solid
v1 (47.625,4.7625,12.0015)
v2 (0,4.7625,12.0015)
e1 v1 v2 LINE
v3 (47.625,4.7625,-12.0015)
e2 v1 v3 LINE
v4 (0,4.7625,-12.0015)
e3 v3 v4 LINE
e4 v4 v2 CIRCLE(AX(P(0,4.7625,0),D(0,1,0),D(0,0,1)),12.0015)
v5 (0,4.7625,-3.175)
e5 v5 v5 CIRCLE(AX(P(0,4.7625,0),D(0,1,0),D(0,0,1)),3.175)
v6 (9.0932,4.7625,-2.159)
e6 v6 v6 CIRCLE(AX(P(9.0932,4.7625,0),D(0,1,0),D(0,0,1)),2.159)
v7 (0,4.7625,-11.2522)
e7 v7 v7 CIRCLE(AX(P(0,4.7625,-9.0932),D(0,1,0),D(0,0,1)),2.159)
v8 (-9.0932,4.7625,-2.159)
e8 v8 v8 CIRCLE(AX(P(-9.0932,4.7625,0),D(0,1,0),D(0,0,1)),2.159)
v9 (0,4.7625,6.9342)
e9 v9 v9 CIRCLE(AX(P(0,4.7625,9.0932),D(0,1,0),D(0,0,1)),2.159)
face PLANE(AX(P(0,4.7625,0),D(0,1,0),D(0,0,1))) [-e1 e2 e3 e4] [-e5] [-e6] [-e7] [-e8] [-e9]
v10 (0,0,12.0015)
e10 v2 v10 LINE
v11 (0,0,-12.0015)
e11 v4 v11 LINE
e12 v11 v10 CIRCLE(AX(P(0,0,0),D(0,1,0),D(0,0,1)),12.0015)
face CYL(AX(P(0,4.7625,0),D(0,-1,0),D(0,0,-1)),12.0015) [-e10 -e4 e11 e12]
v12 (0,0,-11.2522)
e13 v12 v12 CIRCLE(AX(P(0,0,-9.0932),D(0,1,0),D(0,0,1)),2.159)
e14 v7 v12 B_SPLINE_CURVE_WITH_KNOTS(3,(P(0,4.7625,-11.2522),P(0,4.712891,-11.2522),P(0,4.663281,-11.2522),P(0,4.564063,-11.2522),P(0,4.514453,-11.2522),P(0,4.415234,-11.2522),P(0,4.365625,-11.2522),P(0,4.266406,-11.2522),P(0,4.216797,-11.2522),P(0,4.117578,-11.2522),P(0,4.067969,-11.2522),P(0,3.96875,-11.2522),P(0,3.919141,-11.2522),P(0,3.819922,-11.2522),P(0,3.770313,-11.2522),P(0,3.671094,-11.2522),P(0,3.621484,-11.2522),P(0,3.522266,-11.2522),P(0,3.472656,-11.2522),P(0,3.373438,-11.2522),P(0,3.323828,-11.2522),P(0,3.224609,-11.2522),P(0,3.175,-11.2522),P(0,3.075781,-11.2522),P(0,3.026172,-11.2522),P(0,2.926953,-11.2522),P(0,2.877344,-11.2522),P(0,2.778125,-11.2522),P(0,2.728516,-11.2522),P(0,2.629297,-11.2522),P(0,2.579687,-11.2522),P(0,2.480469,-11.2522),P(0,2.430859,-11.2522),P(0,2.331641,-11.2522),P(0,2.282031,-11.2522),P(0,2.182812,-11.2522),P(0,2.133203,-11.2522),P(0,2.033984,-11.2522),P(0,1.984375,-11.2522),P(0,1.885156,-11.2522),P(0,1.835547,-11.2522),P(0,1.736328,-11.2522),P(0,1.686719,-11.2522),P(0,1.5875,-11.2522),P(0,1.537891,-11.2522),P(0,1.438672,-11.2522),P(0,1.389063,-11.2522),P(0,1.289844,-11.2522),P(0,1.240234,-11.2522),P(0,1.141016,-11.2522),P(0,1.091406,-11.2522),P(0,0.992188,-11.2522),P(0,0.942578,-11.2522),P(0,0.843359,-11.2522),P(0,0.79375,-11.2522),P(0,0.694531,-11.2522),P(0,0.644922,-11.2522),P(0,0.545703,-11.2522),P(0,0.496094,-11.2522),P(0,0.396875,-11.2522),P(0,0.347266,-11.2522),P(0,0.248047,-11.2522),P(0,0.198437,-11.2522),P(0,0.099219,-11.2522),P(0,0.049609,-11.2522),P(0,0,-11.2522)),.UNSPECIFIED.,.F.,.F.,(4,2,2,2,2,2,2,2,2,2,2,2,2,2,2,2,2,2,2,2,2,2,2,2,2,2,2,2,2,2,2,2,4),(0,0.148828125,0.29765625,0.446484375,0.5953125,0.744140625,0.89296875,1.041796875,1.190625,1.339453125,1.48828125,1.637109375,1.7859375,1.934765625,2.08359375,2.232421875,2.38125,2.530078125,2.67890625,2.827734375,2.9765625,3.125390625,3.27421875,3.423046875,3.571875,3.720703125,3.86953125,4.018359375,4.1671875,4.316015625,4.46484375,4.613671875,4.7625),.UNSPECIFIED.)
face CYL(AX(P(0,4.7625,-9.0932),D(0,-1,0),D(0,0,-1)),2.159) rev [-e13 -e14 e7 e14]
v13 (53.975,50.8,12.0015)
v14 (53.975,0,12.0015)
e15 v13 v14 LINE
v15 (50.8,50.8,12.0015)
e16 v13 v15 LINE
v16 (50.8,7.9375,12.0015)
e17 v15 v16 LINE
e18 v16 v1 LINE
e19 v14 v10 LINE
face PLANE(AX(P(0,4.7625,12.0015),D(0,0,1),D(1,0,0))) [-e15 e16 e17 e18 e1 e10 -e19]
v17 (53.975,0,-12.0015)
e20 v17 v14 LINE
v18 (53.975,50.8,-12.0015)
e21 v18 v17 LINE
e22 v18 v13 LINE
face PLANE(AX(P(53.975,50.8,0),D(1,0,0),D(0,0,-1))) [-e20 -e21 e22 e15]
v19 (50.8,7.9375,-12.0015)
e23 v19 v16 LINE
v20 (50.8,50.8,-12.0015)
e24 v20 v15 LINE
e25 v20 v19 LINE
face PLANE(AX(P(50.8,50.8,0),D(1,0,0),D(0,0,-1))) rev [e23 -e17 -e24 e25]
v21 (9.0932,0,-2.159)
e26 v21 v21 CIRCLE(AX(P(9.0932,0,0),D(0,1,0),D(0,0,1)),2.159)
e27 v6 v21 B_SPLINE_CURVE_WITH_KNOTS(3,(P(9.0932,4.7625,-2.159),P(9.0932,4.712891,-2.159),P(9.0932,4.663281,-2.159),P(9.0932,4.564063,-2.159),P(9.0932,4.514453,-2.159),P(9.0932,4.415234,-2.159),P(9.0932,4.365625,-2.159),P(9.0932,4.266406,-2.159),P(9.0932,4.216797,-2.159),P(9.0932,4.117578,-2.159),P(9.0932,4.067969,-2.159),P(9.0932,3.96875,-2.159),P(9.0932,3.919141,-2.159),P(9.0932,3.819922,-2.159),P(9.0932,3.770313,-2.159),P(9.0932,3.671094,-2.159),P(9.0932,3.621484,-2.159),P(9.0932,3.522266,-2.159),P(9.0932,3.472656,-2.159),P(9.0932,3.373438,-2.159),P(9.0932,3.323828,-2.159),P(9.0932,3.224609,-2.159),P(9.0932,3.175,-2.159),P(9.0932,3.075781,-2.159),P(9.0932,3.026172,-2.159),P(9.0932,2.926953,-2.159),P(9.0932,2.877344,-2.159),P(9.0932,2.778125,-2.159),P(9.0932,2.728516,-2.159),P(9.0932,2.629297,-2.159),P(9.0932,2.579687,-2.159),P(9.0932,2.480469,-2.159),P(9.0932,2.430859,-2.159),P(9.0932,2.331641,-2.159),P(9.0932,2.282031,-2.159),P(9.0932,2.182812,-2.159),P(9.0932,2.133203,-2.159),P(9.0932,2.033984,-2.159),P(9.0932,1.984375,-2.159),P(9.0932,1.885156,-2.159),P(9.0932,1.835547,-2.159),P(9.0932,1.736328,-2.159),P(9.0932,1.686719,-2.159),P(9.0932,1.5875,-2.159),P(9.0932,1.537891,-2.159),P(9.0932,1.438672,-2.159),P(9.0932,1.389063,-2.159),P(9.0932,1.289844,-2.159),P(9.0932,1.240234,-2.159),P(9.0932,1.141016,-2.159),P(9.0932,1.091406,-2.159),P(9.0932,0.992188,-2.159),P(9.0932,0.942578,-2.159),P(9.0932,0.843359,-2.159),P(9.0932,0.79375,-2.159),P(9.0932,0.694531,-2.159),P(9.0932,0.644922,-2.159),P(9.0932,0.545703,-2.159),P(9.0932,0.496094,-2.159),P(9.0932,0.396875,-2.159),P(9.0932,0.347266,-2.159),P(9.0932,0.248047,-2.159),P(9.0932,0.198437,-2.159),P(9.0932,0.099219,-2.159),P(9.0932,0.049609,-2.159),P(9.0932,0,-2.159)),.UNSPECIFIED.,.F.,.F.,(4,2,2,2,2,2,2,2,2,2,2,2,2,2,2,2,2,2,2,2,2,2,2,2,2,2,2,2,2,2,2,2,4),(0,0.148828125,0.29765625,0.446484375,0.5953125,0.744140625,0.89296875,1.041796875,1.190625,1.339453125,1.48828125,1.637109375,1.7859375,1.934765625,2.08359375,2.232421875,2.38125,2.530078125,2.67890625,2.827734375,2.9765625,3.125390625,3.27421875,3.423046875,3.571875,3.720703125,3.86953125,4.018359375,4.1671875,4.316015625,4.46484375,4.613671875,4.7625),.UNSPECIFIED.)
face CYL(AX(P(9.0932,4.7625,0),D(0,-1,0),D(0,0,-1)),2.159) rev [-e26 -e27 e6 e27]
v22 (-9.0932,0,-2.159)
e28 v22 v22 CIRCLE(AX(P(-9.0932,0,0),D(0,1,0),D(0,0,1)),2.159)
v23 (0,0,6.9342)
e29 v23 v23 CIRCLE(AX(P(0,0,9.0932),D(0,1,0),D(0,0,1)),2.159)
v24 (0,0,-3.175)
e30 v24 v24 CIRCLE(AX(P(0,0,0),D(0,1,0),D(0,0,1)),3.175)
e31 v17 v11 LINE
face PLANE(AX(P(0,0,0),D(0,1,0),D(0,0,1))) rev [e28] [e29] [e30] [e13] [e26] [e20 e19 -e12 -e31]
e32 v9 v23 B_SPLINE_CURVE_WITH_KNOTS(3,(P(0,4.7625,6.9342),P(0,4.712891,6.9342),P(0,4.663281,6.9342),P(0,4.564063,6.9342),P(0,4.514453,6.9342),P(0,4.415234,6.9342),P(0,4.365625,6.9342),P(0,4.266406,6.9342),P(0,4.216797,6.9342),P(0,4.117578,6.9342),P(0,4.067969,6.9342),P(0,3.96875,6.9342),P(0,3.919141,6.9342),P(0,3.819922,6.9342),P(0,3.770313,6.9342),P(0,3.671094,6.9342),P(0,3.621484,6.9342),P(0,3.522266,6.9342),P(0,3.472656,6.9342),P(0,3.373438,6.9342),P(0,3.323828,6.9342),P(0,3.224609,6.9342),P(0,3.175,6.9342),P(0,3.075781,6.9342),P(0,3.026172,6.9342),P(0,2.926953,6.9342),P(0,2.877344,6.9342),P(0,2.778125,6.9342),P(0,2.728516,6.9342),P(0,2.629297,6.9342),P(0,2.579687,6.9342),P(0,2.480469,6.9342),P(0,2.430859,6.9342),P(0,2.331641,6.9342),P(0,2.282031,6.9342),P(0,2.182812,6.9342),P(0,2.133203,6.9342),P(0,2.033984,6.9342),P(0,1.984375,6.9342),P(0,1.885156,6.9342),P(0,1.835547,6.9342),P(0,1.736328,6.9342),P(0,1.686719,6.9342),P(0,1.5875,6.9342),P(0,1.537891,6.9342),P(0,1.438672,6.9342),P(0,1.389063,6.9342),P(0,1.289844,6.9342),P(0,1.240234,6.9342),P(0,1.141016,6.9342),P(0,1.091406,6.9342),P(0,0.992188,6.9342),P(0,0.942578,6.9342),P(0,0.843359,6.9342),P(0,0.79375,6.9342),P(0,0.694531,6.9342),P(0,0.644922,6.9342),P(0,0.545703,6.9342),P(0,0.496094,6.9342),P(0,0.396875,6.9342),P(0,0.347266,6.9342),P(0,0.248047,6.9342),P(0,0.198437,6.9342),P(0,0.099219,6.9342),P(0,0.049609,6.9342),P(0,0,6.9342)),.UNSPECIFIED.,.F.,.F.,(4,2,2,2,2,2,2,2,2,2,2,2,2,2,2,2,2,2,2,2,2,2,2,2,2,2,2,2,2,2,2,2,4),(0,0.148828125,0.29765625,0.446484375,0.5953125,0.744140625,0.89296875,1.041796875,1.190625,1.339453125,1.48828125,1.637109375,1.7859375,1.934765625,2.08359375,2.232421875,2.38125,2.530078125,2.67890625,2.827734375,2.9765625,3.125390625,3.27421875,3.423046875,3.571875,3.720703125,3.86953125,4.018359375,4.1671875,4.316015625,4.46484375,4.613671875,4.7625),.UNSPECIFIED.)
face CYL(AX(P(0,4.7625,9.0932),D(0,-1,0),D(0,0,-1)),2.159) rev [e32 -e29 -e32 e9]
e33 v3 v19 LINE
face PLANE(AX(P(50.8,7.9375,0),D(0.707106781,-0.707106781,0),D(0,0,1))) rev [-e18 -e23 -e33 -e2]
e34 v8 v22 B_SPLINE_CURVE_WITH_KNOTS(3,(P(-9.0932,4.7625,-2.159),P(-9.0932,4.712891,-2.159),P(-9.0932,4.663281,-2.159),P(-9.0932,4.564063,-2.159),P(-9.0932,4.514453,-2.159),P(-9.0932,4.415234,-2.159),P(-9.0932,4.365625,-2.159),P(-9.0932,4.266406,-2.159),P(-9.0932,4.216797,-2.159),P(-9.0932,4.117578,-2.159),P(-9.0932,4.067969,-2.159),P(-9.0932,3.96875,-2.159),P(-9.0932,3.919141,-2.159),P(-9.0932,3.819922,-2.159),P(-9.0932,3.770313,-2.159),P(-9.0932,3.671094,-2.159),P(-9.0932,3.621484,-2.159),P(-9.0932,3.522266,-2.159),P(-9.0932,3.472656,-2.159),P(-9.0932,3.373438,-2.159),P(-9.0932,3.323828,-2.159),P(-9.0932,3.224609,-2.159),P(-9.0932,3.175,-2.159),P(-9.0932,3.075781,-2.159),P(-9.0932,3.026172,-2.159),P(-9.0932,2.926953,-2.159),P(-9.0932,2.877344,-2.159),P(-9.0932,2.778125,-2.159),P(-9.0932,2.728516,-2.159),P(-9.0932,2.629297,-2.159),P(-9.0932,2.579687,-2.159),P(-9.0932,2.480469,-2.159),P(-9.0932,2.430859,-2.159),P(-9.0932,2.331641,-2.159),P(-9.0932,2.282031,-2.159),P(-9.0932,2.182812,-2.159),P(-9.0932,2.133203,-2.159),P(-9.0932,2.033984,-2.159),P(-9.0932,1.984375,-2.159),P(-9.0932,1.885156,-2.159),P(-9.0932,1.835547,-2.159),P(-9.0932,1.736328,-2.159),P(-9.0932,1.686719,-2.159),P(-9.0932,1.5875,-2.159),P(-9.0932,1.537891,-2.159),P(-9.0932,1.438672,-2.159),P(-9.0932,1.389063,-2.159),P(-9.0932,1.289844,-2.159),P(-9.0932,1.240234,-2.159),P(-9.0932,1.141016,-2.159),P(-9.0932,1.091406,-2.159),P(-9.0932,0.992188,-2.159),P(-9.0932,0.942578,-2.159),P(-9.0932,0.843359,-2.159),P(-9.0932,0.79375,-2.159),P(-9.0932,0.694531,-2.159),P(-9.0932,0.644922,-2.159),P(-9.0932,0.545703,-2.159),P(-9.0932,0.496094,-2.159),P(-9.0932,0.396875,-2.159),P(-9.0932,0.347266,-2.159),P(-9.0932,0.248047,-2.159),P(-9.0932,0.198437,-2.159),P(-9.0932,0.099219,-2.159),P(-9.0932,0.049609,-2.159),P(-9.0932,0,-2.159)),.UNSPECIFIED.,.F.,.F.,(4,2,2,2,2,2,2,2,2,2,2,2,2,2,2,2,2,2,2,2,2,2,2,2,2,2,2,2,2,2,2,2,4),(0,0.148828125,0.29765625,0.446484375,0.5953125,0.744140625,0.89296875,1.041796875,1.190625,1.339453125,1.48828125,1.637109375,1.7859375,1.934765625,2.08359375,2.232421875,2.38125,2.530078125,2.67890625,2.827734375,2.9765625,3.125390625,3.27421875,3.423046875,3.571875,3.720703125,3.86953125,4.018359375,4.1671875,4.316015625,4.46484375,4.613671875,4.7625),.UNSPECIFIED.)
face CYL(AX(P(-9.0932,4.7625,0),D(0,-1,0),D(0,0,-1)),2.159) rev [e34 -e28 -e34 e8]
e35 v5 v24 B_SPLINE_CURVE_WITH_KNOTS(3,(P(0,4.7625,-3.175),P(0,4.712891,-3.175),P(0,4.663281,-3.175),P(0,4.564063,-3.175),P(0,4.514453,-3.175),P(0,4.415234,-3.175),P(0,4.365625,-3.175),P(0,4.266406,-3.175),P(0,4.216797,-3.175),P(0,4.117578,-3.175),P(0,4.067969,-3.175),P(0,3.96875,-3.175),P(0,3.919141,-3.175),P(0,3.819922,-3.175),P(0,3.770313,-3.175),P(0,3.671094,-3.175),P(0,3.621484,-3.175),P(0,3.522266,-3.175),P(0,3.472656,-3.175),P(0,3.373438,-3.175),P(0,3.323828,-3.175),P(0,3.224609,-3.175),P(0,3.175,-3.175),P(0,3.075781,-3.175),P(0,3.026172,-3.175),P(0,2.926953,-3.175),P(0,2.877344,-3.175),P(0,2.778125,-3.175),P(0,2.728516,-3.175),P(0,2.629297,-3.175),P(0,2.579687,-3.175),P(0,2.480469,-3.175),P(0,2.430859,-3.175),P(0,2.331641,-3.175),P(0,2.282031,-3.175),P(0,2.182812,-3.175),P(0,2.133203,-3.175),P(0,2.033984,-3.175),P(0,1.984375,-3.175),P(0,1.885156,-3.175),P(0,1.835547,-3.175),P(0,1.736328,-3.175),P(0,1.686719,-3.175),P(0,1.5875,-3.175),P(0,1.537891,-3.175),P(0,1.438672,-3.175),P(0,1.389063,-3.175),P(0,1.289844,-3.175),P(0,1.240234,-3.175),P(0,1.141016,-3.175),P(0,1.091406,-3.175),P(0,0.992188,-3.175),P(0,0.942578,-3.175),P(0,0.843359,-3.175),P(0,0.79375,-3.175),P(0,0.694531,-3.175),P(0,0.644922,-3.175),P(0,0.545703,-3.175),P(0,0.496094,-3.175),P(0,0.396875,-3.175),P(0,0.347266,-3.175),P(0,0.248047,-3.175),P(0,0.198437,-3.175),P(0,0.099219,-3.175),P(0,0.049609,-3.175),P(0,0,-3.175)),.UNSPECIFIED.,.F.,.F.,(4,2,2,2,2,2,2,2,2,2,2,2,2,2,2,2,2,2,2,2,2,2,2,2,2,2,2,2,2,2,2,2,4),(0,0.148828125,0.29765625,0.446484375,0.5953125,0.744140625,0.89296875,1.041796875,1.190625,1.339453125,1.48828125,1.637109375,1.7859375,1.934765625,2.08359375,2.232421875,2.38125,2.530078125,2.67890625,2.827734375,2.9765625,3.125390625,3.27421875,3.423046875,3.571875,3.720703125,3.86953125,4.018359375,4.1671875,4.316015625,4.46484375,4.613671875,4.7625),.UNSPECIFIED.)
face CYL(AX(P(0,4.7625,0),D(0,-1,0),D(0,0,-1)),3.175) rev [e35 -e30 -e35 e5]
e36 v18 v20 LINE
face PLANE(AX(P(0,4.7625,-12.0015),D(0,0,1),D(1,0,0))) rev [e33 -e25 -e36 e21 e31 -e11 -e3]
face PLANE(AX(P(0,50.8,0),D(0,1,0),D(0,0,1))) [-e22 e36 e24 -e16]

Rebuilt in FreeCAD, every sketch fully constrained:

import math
import FreeCAD as App
import Part
import Sketcher
from FreeCAD import Vector
Q = App.Units.Quantity


def edges_at(feature, points):
    """Names of the edges that pass closest to the given points."""
    edges = feature.Shape.Edges
    near = lambda p: min(range(len(edges)), key=lambda i: edges[i].distToShape(Part.Vertex(*p))[0])
    return sorted({f"Edge{near(p) + 1}" for p in points})


def add_polygon(sketch, points):
    """Adds a closed chain of lines whose ends are joined by coincident constraints."""
    first, n = sketch.GeometryCount, len(points)
    for a, b in zip(points, points[1:] + points[:1]):
        sketch.addGeometry(Part.LineSegment(App.Vector(*a, 0), App.Vector(*b, 0)), False)
    for i in range(n):
        sketch.addConstraint(Sketcher.Constraint("Coincident", first + i, 2, first + (i + 1) % n, 1))

doc = App.newDocument("Part")
params = doc.addObject("Spreadsheet::Sheet", "Params")
for row, (alias, value) in enumerate([
    ("sketch1_diameter", "0.17 in"),
    ("sketch1_diameter2", "0.25 in"),
    ("sketch1_width", "2 in"),
    ("pad1_length", "0.1875 in"),
    ("sketch2_width", "0.125 in"),
    ("sketch2_height", "0.945 in"),
    ("pad2_length", "2 in"),
    ("chamfer_size", "0.125 in"),
], start=1):
    params.set(f"A{row}", alias)
    params.set(f"B{row}", "=" + value)
    params.setAlias(f"B{row}", alias)

body = doc.addObject("PartDesign::Body", "Body")

# Sketch on XZ plane
sketch1 = body.newObject("Sketcher::SketchObject", "Sketch")
sketch1.AttachmentSupport = (doc.getObject("XZ_Plane"), [""])
sketch1.MapMode = "FlatFace"
sketch1.addGeometry([
    Part.LineSegment(Vector(50.8, -12.0015, 0), Vector(0, -12.0015, 0)),  # 0
    Part.ArcOfCircle(Part.Circle(Vector(0, 0, 0), Vector(0, 0, 1), 12.0015), math.radians(90), math.radians(270)),  # 1
    Part.LineSegment(Vector(0, 12.0015, 0), Vector(50.8, 12.0015, 0)),  # 2
    Part.LineSegment(Vector(50.8, 12.0015, 0), Vector(50.8, -12.0015, 0)),  # 3
    Part.Circle(Vector(0, 9.0932, 0), Vector(0, 0, 1), 2.159),  # 4
    Part.Circle(Vector(-9.0932, 0, 0), Vector(0, 0, 1), 2.159),  # 5
    Part.Circle(Vector(0, 0, 0), Vector(0, 0, 1), 3.175),  # 6
    Part.Circle(Vector(9.0932, 0, 0), Vector(0, 0, 1), 2.159),  # 7
    Part.Circle(Vector(0, -9.0932, 0), Vector(0, 0, 1), 2.159),  # 8
], False)
sketch1.addConstraint([
    Sketcher.Constraint("Tangent", 0, 2, 1, 2),
    Sketcher.Constraint("Tangent", 1, 1, 2, 1),
    Sketcher.Constraint("Coincident", 2, 2, 3, 1),
    Sketcher.Constraint("Coincident", 3, 2, 0, 1),
    Sketcher.Constraint("Horizontal", 0),
    Sketcher.Constraint("Horizontal", 2),
    Sketcher.Constraint("Vertical", 3),
    Sketcher.Constraint("Coincident", 1, 3, -1, 1),
    Sketcher.Constraint("Coincident", 6, 3, -1, 1),
    Sketcher.Constraint("Equal", 4, 5),
    Sketcher.Constraint("Equal", 5, 7),
    Sketcher.Constraint("Equal", 7, 8),
    Sketcher.Constraint("Symmetric", 5, 3, 7, 3, -1, 1),
    Sketcher.Constraint("Symmetric", 4, 3, 8, 3, -1, 1),
    Sketcher.Constraint("PointOnObject", 4, 3, -2),
    Sketcher.Constraint("PointOnObject", 5, 3, -1),
    Sketcher.Constraint("Diameter", 4, Q("0.17 in")),
    Sketcher.Constraint("Diameter", 6, Q("0.25 in")),
    Sketcher.Constraint("DistanceX", 0, 2, 0, 1, Q("2 in")),
    Sketcher.Constraint("Radius", 1, Q("0.4725 in")),
    Sketcher.Constraint("DistanceY", -1, 1, 4, 3, Q("0.358 in")),
    Sketcher.Constraint("DistanceX", 5, 3, -1, 1, Q("0.358 in")),
])
sketch1.setExpression("Constraints[16]", "Params.sketch1_diameter")
sketch1.setExpression("Constraints[17]", "Params.sketch1_diameter2")
sketch1.setExpression("Constraints[18]", "Params.sketch1_width")
pad1 = body.newObject("PartDesign::Pad", "Pad")
pad1.Profile = sketch1
pad1.setExpression("Length", "Params.pad1_length")
pad1.Reversed = True

# Sketch on XZ plane
sketch2 = body.newObject("Sketcher::SketchObject", "Sketch001")
sketch2.AttachmentSupport = (doc.getObject("XZ_Plane"), [""])
sketch2.MapMode = "FlatFace"
add_polygon(sketch2, [(50.8, -12.0015), (50.8, 12.0015), (53.975, 12.0015), (53.975, -12.0015)])  # lines 0-3
sketch2.addConstraint([
    Sketcher.Constraint("Vertical", 0),
    Sketcher.Constraint("Horizontal", 1),
    Sketcher.Constraint("Vertical", 2),
    Sketcher.Constraint("Horizontal", 3),
    Sketcher.Constraint("DistanceX", -1, 1, 0, 2, Q("2 in")),
    Sketcher.Constraint("DistanceX", 1, 1, 1, 2, Q("0.125 in")),
    Sketcher.Constraint("DistanceY", 0, 1, 0, 2, Q("0.945 in")),
    Sketcher.Constraint("DistanceY", -1, 1, 0, 2, Q("0.4725 in")),
])
sketch2.setExpression("Constraints[9]", "Params.sketch2_width")
sketch2.setExpression("Constraints[10]", "Params.sketch2_height")
pad2 = body.newObject("PartDesign::Pad", "Pad001")
pad2.Profile = sketch2
pad2.setExpression("Length", "Params.pad2_length")
pad2.Reversed = True
doc.recompute()

chamfer = body.newObject("PartDesign::Chamfer", "Chamfer")
chamfer.Base = (pad2, edges_at(pad2, [(50.8, 4.763, 0)]))
chamfer.setExpression("Size", "Params.chamfer_size")

doc.recompute()
